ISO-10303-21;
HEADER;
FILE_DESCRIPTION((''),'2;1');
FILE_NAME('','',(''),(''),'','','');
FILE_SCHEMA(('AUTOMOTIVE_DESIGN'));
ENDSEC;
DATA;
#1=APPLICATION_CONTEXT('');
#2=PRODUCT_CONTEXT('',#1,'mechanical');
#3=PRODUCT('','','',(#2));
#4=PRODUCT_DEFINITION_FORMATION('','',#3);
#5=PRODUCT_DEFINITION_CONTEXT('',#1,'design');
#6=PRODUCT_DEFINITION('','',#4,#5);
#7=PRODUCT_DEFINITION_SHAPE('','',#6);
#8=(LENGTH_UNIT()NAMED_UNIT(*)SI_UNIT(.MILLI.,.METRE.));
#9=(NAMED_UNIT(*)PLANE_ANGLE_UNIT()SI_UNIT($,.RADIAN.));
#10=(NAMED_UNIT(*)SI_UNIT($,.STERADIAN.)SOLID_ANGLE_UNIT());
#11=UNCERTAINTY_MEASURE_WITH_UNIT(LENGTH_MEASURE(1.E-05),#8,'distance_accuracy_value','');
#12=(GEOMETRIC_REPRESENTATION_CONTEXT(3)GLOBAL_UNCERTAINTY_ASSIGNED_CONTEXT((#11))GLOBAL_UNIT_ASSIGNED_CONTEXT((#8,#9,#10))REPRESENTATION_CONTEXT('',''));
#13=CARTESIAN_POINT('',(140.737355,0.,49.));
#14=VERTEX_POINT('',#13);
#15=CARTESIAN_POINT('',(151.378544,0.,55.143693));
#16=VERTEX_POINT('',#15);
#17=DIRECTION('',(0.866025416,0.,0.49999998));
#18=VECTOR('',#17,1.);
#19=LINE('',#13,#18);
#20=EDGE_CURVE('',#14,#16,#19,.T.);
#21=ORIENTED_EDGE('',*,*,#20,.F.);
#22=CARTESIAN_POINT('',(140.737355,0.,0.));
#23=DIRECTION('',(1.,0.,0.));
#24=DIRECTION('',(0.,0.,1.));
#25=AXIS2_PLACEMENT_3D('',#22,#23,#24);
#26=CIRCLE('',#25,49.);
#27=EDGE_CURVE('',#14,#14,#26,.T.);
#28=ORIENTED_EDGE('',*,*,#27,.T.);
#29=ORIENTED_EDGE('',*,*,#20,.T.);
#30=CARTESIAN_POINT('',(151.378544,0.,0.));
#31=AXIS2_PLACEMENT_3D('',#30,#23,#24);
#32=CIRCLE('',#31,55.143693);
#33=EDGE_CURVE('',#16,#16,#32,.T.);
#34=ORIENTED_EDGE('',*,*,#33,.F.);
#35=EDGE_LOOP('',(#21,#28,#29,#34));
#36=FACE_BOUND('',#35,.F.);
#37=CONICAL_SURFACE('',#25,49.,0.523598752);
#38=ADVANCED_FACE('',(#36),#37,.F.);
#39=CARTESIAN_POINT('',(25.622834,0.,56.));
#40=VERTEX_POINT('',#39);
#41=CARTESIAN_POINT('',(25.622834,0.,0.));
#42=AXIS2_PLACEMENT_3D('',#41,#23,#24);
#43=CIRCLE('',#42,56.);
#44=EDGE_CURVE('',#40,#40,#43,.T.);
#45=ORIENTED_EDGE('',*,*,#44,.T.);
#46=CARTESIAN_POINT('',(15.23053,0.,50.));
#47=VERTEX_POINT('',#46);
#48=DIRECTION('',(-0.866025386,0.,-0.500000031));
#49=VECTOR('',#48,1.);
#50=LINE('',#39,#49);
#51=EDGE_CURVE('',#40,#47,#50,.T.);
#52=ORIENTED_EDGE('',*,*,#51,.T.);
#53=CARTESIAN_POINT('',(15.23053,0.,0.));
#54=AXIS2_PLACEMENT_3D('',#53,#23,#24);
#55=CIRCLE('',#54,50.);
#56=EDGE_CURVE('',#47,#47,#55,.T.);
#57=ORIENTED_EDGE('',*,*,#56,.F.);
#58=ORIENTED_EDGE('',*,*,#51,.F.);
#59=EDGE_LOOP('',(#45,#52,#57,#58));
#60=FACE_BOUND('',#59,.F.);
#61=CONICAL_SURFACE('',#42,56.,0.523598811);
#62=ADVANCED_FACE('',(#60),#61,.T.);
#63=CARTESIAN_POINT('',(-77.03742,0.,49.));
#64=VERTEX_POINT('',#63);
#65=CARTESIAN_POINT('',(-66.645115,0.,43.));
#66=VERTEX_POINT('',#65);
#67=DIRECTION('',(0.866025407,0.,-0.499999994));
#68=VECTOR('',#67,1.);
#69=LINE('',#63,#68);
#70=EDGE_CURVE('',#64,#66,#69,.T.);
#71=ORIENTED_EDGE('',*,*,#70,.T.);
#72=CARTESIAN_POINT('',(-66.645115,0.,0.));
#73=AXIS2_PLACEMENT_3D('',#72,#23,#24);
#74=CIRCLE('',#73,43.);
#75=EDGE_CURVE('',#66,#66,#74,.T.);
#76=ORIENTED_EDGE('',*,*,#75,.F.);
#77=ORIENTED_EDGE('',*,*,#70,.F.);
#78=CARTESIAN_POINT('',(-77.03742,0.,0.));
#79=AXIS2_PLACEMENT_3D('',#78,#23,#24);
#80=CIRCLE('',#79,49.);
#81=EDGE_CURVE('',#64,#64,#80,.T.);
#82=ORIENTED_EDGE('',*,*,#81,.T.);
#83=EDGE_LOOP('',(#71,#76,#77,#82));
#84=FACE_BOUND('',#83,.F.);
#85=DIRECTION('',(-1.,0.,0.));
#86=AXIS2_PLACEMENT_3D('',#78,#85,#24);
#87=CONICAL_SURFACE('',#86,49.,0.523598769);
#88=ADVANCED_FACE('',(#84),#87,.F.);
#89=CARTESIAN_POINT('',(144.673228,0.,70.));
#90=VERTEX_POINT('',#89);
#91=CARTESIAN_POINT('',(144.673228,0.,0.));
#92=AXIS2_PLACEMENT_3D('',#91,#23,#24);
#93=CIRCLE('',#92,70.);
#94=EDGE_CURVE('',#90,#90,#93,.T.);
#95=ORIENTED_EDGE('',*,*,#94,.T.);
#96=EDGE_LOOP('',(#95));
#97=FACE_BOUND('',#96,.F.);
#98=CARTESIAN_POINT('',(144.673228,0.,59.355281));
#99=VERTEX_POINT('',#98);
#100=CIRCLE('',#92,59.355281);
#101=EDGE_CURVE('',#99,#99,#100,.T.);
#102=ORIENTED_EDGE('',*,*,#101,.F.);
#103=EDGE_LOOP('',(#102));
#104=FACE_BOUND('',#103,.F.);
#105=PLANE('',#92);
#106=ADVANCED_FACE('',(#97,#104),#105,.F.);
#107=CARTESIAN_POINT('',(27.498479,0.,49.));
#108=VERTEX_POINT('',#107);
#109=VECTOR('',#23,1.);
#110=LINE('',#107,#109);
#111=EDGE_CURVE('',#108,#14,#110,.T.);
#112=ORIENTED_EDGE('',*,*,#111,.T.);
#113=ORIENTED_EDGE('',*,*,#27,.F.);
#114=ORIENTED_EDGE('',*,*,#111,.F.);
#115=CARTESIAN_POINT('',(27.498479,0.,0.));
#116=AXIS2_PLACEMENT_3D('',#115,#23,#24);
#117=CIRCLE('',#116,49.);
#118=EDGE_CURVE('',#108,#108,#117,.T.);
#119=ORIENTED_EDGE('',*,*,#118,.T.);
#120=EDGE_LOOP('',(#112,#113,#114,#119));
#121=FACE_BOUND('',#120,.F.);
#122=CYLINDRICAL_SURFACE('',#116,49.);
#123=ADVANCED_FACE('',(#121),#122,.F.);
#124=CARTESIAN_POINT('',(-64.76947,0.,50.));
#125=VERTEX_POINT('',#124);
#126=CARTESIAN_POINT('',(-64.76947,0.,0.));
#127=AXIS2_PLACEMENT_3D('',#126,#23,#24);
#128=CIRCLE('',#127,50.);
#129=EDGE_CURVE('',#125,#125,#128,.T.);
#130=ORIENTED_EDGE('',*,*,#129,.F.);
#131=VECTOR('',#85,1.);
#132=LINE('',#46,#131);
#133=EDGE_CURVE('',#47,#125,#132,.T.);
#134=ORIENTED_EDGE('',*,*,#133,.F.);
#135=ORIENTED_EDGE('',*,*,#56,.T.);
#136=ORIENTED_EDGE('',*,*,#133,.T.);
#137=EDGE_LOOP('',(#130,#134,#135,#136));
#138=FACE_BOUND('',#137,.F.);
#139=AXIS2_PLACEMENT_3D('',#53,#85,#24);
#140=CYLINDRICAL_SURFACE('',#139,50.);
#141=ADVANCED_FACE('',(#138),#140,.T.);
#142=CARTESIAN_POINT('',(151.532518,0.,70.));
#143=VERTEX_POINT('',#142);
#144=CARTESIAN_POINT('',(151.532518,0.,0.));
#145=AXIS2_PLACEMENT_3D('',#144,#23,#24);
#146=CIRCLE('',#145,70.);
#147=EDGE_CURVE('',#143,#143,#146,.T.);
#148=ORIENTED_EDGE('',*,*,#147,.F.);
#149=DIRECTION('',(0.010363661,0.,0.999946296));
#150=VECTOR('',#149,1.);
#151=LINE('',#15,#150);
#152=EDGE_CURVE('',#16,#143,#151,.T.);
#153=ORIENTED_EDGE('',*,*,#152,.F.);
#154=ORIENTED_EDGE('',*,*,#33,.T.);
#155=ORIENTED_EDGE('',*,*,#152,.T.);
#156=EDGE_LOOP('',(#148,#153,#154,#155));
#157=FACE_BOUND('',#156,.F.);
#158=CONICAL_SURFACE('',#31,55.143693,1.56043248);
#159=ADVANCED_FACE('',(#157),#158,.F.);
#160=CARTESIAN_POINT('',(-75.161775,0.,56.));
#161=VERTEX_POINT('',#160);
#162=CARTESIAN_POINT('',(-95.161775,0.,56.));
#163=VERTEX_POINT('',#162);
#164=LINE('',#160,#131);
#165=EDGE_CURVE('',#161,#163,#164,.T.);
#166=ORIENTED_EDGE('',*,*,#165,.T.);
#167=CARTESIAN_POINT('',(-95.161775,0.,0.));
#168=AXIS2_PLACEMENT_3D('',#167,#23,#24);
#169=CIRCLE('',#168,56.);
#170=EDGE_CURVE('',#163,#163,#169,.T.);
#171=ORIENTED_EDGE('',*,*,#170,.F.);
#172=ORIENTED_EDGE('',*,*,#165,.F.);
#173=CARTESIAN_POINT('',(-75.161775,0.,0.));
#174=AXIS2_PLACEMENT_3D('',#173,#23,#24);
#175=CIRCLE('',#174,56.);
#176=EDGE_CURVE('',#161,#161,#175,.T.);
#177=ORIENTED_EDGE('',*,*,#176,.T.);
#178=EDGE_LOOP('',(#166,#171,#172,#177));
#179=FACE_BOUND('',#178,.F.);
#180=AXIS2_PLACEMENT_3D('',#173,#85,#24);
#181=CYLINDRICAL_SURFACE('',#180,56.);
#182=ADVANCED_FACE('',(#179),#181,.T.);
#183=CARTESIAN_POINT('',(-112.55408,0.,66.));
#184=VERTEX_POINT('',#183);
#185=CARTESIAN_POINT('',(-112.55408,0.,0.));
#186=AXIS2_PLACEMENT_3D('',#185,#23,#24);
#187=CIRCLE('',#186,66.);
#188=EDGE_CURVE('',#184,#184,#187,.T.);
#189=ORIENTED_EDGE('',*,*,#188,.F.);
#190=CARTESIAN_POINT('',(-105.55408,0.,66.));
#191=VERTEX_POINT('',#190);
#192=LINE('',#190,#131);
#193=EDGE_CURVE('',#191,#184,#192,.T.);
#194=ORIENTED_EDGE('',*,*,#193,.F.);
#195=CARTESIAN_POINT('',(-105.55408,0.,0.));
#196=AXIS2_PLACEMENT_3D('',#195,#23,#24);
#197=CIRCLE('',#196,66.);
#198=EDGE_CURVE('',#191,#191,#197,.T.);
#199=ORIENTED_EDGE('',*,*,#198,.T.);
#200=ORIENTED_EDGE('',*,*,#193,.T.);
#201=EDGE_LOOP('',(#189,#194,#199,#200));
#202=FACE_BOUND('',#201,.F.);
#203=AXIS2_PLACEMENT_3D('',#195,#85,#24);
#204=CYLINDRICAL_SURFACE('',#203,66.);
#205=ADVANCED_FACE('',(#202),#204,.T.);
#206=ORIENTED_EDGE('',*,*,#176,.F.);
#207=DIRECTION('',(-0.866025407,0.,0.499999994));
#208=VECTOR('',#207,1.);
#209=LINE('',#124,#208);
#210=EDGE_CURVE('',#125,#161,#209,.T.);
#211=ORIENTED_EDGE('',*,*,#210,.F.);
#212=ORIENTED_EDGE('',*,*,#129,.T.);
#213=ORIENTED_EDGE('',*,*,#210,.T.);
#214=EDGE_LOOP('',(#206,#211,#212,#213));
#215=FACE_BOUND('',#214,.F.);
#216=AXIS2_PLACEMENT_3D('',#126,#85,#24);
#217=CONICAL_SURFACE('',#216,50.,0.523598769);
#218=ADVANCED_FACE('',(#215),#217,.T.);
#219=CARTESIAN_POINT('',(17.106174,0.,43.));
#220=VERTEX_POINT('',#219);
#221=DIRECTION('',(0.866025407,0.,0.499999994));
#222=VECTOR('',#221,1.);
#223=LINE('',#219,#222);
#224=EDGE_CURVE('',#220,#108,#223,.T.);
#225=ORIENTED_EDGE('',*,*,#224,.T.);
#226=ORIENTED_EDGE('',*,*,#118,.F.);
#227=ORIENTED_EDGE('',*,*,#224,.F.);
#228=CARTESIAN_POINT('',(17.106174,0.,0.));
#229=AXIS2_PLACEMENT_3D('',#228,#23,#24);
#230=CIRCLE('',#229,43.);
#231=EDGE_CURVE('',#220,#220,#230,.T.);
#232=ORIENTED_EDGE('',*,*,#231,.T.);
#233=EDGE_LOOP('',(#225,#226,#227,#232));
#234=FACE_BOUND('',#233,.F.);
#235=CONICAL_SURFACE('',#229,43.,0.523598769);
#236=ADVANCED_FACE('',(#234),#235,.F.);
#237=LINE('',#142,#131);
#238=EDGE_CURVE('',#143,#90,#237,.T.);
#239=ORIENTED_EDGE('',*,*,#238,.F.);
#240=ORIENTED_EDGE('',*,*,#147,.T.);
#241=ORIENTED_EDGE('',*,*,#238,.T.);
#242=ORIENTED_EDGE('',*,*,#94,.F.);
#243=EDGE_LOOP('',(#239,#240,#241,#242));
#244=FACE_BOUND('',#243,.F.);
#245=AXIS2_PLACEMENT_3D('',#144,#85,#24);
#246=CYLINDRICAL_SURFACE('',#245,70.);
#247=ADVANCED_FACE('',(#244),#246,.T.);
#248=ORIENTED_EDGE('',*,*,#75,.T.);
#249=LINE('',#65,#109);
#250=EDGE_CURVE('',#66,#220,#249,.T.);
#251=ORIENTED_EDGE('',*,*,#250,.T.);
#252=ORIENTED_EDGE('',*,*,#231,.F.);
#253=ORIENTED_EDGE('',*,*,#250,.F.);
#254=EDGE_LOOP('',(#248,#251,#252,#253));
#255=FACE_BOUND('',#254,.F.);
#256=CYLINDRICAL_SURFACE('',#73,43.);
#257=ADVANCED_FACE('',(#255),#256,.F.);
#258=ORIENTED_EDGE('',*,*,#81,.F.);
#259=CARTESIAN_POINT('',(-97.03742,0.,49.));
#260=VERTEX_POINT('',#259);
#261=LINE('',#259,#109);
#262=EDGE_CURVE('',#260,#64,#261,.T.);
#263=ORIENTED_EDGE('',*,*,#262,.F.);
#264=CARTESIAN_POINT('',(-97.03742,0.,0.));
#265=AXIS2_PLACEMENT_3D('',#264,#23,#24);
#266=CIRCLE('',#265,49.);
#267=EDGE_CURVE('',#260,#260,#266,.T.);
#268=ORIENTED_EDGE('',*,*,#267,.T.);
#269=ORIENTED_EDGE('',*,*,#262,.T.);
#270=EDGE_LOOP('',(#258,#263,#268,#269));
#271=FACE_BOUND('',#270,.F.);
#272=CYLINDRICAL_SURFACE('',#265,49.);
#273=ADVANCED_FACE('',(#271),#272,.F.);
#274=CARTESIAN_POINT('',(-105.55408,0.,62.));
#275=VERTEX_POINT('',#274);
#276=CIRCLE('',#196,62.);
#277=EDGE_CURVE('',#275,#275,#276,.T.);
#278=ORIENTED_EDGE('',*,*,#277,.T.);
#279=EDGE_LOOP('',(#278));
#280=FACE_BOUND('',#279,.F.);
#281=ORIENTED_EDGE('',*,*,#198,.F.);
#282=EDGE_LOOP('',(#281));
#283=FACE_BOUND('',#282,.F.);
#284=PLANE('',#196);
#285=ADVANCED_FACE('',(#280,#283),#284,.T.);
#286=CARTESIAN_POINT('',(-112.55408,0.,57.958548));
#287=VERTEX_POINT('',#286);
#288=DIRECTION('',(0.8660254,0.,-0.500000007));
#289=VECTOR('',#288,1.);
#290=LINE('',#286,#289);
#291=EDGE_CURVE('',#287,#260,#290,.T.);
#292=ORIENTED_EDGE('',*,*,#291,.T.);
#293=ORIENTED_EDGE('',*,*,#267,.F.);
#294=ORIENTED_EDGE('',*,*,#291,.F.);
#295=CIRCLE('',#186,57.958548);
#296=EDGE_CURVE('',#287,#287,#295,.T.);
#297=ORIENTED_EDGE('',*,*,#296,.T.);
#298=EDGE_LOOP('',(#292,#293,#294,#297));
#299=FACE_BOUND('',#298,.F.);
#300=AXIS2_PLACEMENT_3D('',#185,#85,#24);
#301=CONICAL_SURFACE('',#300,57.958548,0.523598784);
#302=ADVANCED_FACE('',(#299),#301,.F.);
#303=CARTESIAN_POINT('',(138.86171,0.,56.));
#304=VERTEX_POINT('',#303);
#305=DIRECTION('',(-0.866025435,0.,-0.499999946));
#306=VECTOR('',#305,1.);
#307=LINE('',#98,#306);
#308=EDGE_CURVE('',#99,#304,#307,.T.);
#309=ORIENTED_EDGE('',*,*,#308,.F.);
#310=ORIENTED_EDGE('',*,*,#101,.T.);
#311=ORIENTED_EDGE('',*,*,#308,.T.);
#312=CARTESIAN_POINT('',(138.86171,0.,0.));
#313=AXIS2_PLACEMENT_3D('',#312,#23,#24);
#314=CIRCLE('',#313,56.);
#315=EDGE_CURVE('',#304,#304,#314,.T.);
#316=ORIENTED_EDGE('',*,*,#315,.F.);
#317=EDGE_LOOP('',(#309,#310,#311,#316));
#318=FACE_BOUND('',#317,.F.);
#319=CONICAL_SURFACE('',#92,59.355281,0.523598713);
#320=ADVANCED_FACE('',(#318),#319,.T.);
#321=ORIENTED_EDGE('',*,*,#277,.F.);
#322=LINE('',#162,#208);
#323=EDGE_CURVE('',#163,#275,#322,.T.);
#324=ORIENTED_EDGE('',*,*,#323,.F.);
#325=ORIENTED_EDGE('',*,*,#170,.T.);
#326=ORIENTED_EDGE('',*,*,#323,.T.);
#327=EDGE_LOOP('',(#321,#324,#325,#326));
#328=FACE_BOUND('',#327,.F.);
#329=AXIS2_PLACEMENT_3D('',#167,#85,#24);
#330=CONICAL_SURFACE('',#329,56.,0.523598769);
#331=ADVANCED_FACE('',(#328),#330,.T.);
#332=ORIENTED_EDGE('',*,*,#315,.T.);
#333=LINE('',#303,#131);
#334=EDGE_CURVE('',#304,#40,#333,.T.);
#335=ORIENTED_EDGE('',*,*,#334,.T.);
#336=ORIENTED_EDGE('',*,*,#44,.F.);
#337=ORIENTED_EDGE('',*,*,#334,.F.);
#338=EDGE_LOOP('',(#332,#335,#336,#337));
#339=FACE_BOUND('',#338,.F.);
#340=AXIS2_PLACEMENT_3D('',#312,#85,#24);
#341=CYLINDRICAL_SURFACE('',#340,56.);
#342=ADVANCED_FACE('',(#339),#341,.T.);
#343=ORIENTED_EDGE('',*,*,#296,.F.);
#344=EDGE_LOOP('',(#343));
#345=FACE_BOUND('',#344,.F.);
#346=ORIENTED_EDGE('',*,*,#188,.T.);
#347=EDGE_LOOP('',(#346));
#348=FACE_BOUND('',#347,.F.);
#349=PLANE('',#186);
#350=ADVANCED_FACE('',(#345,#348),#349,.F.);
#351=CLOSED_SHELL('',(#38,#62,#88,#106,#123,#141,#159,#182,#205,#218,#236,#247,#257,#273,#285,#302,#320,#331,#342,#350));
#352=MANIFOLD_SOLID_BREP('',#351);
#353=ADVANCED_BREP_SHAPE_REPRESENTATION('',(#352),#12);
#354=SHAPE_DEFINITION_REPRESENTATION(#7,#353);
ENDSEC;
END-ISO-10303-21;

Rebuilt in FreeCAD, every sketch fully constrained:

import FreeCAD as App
import Part
import Sketcher
from FreeCAD import Vector
Q = App.Units.Quantity

doc = App.newDocument("Part")
body = doc.addObject("PartDesign::Body", "Body")

sketch1 = doc.addObject("Sketcher::SketchObject", "Sketch")
body.addObject(sketch1)
sketch1.AttachmentSupport = (doc.XZ_Plane, [""])
sketch1.MapMode = "FlatFace"
sketch1.addGeometry([
    Part.LineSegment(Vector(-105.6, 62, 0), Vector(-105.6, 66, 0)),
    Part.LineSegment(Vector(-105.6, 66, 0), Vector(-112.6, 66, 0)),
    Part.LineSegment(Vector(-112.6, 66, 0), Vector(-112.6, 58, 0)),
    Part.LineSegment(Vector(-112.6, 58, 0), Vector(-97, 49, 0)),
    Part.LineSegment(Vector(-97, 49, 0), Vector(-77, 49, 0)),
    Part.LineSegment(Vector(-77, 49, 0), Vector(-66.6, 43, 0)),
    Part.LineSegment(Vector(-66.6, 43, 0), Vector(17.1, 43, 0)),
    Part.LineSegment(Vector(17.1, 43, 0), Vector(27.5, 49, 0)),
    Part.LineSegment(Vector(27.5, 49, 0), Vector(140.7, 49, 0)),
    Part.LineSegment(Vector(140.7, 49, 0), Vector(151.4, 55.1, 0)),
    Part.LineSegment(Vector(151.4, 55.1, 0), Vector(151.5, 70, 0)),
    Part.LineSegment(Vector(151.5, 70, 0), Vector(144.7, 70, 0)),
    Part.LineSegment(Vector(144.7, 70, 0), Vector(144.7, 59.4, 0)),
    Part.LineSegment(Vector(144.7, 59.4, 0), Vector(138.9, 56, 0)),
    Part.LineSegment(Vector(138.9, 56, 0), Vector(25.6, 56, 0)),
    Part.LineSegment(Vector(25.6, 56, 0), Vector(15.2, 50, 0)),
    Part.LineSegment(Vector(15.2, 50, 0), Vector(-64.8, 50, 0)),
    Part.LineSegment(Vector(-64.8, 50, 0), Vector(-75.2, 56, 0)),
    Part.LineSegment(Vector(-75.2, 56, 0), Vector(-95.2, 56, 0)),
    Part.LineSegment(Vector(-95.2, 56, 0), Vector(-105.6, 62, 0)),
], False)
sketch1.addConstraint([
    Sketcher.Constraint("Coincident", 0, 2, 1, 1),
    Sketcher.Constraint("Coincident", 1, 2, 2, 1),
    Sketcher.Constraint("Coincident", 2, 2, 3, 1),
    Sketcher.Constraint("Coincident", 3, 2, 4, 1),
    Sketcher.Constraint("Coincident", 4, 2, 5, 1),
    Sketcher.Constraint("Coincident", 5, 2, 6, 1),
    Sketcher.Constraint("Coincident", 6, 2, 7, 1),
    Sketcher.Constraint("Coincident", 7, 2, 8, 1),
    Sketcher.Constraint("Coincident", 8, 2, 9, 1),
    Sketcher.Constraint("Coincident", 9, 2, 10, 1),
    Sketcher.Constraint("Coincident", 10, 2, 11, 1),
    Sketcher.Constraint("Coincident", 11, 2, 12, 1),
    Sketcher.Constraint("Coincident", 12, 2, 13, 1),
    Sketcher.Constraint("Coincident", 13, 2, 14, 1),
    Sketcher.Constraint("Coincident", 14, 2, 15, 1),
    Sketcher.Constraint("Coincident", 15, 2, 16, 1),
    Sketcher.Constraint("Coincident", 16, 2, 17, 1),
    Sketcher.Constraint("Coincident", 17, 2, 18, 1),
    Sketcher.Constraint("Coincident", 18, 2, 19, 1),
    Sketcher.Constraint("Coincident", 19, 2, 0, 1),
    Sketcher.Constraint("Vertical", 0),
    Sketcher.Constraint("Horizontal", 1),
    Sketcher.Constraint("Vertical", 2),
    Sketcher.Constraint("Horizontal", 4),
    Sketcher.Constraint("Horizontal", 6),
    Sketcher.Constraint("Horizontal", 8),
    Sketcher.Constraint("Horizontal", 11),
    Sketcher.Constraint("Vertical", 12),
    Sketcher.Constraint("Horizontal", 14),
    Sketcher.Constraint("Horizontal", 16),
    Sketcher.Constraint("Horizontal", 18),
    Sketcher.Constraint("Parallel", 3, 5),
    Sketcher.Constraint("Parallel", 7, 9),
    Sketcher.Constraint("Parallel", 9, 13),
    Sketcher.Constraint("Parallel", 13, 15),
    Sketcher.Constraint("Parallel", 5, 17),
    Sketcher.Constraint("Parallel", 17, 19),
    Sketcher.Constraint("Horizontal", 4, 2, 7, 2),
    Sketcher.Constraint("Horizontal", 14, 2, 17, 2),
    Sketcher.Constraint("Equal", 8, 14),
    Sketcher.Constraint("Equal", 4, 18),
    Sketcher.Constraint("Equal", 5, 7),
    Sketcher.Constraint("Equal", 7, 15),
    Sketcher.Constraint("Equal", 17, 19),
    Sketcher.Constraint("DistanceX", 1, 2, 1, 1, 7.0),
    Sketcher.Constraint("DistanceX", 4, 1, 4, 2, 20.0),
    Sketcher.Constraint("DistanceX", 16, 2, 16, 1, 80.0),
    Sketcher.Constraint("DistanceY", 0, 1, 0, 2, 4.0),
    Sketcher.Constraint("Angle", 3, Q("-30 deg")),
    Sketcher.Constraint("Distance", 5, 12.0),
    Sketcher.Constraint("DistanceY", -1, 1, 0, 2, 66.0),
    Sketcher.Constraint("DistanceY", -1, 1, 3, 2, 49.0),
    Sketcher.Constraint("DistanceY", -1, 1, 10, 2, 70.0),
    Sketcher.Constraint("DistanceX", 6, 1, 6, 2, 83.751289),
    Sketcher.Constraint("DistanceX", 11, 2, 11, 1, 6.85929),
    Sketcher.Constraint("DistanceY", 12, 2, 12, 1, 10.644719),
    Sketcher.Constraint("DistanceX", 8, 1, 8, 2, 113.238876),
    Sketcher.Constraint("DistanceY", 2, 2, 2, 1, 8.041452),
    Sketcher.Constraint("DistanceX", 0, 2, -1, 1, 105.55408),
    Sketcher.Constraint("DistanceX", 8, 2, 9, 2, 10.641189),
])
revolution = doc.addObject("PartDesign::Revolution", "Revolution")
body.addObject(revolution)
revolution.Profile = sketch1
revolution.ReferenceAxis = (sketch1, ["H_Axis"])
revolution.Angle = 360

doc.recompute()
